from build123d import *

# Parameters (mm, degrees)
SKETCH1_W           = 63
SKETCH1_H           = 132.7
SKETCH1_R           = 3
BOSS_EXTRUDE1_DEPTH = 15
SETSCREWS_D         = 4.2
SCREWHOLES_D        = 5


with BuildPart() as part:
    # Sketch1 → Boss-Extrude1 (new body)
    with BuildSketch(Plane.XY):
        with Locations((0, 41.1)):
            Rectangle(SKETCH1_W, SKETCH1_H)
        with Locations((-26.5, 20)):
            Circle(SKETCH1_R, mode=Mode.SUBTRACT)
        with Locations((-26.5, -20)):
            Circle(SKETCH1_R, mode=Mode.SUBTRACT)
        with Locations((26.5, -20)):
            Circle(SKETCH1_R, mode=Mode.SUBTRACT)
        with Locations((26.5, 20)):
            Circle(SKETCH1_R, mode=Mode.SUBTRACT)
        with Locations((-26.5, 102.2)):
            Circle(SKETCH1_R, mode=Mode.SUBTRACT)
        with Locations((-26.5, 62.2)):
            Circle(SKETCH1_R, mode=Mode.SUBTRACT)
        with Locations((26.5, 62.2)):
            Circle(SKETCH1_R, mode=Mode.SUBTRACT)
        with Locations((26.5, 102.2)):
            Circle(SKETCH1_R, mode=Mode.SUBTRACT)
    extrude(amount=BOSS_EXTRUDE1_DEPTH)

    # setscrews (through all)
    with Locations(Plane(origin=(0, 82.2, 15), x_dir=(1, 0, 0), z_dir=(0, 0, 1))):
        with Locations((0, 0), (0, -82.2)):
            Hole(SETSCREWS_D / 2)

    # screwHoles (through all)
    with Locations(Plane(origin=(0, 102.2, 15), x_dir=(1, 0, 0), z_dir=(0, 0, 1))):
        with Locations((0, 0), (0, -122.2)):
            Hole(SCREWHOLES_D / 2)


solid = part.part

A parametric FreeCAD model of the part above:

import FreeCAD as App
import Part
import Sketcher
from FreeCAD import Vector


def add_polygon(sketch, points):
    """Adds a closed chain of lines whose ends are joined by coincident constraints."""
    first, n = sketch.GeometryCount, len(points)
    for a, b in zip(points, points[1:] + points[:1]):
        sketch.addGeometry(Part.LineSegment(App.Vector(*a, 0), App.Vector(*b, 0)), False)
    for i in range(n):
        sketch.addConstraint(Sketcher.Constraint("Coincident", first + i, 2, first + (i + 1) % n, 1))

doc = App.newDocument("Part")
body = doc.addObject("PartDesign::Body", "Body")

# Sketch on XY plane
sketch1 = body.newObject("Sketcher::SketchObject", "Sketch")
sketch1.AttachmentSupport = (doc.getObject("XY_Plane"), [""])
sketch1.MapMode = "FlatFace"
add_polygon(sketch1, [(-31.5, 107.5), (-31.5, -25.2), (31.5, -25.2), (31.5, 107.5)])  # lines 0-3
sketch1.addGeometry(Part.Circle(Vector(-26.5, -20, 0), Vector(0, 0, 1), 3), False)  # 4
sketch1.addGeometry(Part.Circle(Vector(-26.5, 20, 0), Vector(0, 0, 1), 3), False)  # 5
sketch1.addGeometry(Part.Circle(Vector(26.5, -20, 0), Vector(0, 0, 1), 3), False)  # 6
sketch1.addGeometry(Part.Circle(Vector(26.5, 20, 0), Vector(0, 0, 1), 3), False)  # 7
sketch1.addGeometry(Part.Circle(Vector(-26.5, 62.2, 0), Vector(0, 0, 1), 3), False)  # 8
sketch1.addGeometry(Part.Circle(Vector(-26.5, 102.2, 0), Vector(0, 0, 1), 3), False)  # 9
sketch1.addGeometry(Part.Circle(Vector(26.5, 62.2, 0), Vector(0, 0, 1), 3), False)  # 10
sketch1.addGeometry(Part.Circle(Vector(26.5, 102.2, 0), Vector(0, 0, 1), 3), False)  # 11
sketch1.addConstraint([
    Sketcher.Constraint("Vertical", 0),
    Sketcher.Constraint("Horizontal", 1),
    Sketcher.Constraint("Vertical", 2),
    Sketcher.Constraint("Horizontal", 3),
    Sketcher.Constraint("Equal", 4, 5),
    Sketcher.Constraint("Equal", 5, 6),
    Sketcher.Constraint("Equal", 6, 7),
    Sketcher.Constraint("Equal", 7, 8),
    Sketcher.Constraint("Equal", 8, 9),
    Sketcher.Constraint("Equal", 9, 10),
    Sketcher.Constraint("Equal", 10, 11),
    Sketcher.Constraint("Symmetric", 5, 3, 6, 3, -1, 1),
    Sketcher.Constraint("Symmetric", 4, 3, 7, 3, -1, 1),
    Sketcher.Constraint("Symmetric", 4, 3, 6, 3, -2),
    Sketcher.Constraint("Symmetric", 8, 3, 10, 3, -2),
    Sketcher.Constraint("Symmetric", 9, 3, 11, 3, -2),
    Sketcher.Constraint("Vertical", 5, 3, 8, 3),
    Sketcher.Constraint("Vertical", 8, 3, 9, 3),
    Sketcher.Constraint("Diameter", 4, 6.0),
    Sketcher.Constraint("DistanceX", 1, 1, 1, 2, 63.0),
    Sketcher.Constraint("DistanceY", 0, 2, 0, 1, 132.7),
    Sketcher.Constraint("DistanceY", 4, 3, -1, 1, 20.0),
    Sketcher.Constraint("DistanceX", 4, 3, 6, 3, 53.0),
    Sketcher.Constraint("DistanceY", 8, 3, 9, 3, 40.0),
    Sketcher.Constraint("DistanceX", 0, 2, 4, 3, 5.0),
    Sketcher.Constraint("DistanceY", -1, 1, 8, 3, 62.2),
    Sketcher.Constraint("DistanceY", 0, 2, -1, 1, 25.25),
])
pad1 = body.newObject("PartDesign::Pad", "Pad")
pad1.Profile = sketch1
pad1.Length = 15

# Sketch on XY plane
sketch2 = body.newObject("Sketcher::SketchObject", "Sketch001")
sketch2.AttachmentSupport = (doc.getObject("XY_Plane"), [""])
sketch2.MapMode = "FlatFace"
sketch2.AttachmentOffset = App.Placement(Vector(0, 0, 15), App.Rotation())
sketch2.addGeometry([
    Part.Circle(Vector(0, 82.2, 0), Vector(0, 0, 1), 2.1),
    Part.Circle(Vector(0, 0, 0), Vector(0, 0, 1), 2.1),
], False)
sketch2.addConstraint([
    Sketcher.Constraint("Coincident", 1, 3, -1, 1),
    Sketcher.Constraint("Equal", 0, 1),
    Sketcher.Constraint("PointOnObject", 0, 3, -2),
    Sketcher.Constraint("Diameter", 0, 4.2),
    Sketcher.Constraint("DistanceY", -1, 1, 0, 3, 82.2),
])
doc.recompute()
hole = body.newObject("PartDesign::Hole", "Hole")
hole.Profile = sketch2
hole.ThreadType = "None"
hole.Diameter = 4.2
hole.DepthType = "ThroughAll"

# Sketch on XY plane
sketch3 = body.newObject("Sketcher::SketchObject", "Sketch002")
sketch3.AttachmentSupport = (doc.getObject("XY_Plane"), [""])
sketch3.MapMode = "FlatFace"
sketch3.AttachmentOffset = App.Placement(Vector(0, 0, 15), App.Rotation())
sketch3.addGeometry([
    Part.Circle(Vector(0, 102.2, 0), Vector(0, 0, 1), 2.5),
    Part.Circle(Vector(0, -20, 0), Vector(0, 0, 1), 2.5),
], False)
sketch3.addConstraint([
    Sketcher.Constraint("Equal", 0, 1),
    Sketcher.Constraint("PointOnObject", 0, 3, -2),
    Sketcher.Constraint("PointOnObject", 1, 3, -2),
    Sketcher.Constraint("Diameter", 0, 5.0),
    Sketcher.Constraint("DistanceY", 1, 3, -1, 1, 20.0),
    Sketcher.Constraint("DistanceY", -1, 1, 0, 3, 102.2),
])
doc.recompute()
hole2 = body.newObject("PartDesign::Hole", "Hole001")
hole2.Profile = sketch3
hole2.ThreadType = "None"
hole2.Diameter = 5
hole2.DepthType = "ThroughAll"

doc.recompute()
